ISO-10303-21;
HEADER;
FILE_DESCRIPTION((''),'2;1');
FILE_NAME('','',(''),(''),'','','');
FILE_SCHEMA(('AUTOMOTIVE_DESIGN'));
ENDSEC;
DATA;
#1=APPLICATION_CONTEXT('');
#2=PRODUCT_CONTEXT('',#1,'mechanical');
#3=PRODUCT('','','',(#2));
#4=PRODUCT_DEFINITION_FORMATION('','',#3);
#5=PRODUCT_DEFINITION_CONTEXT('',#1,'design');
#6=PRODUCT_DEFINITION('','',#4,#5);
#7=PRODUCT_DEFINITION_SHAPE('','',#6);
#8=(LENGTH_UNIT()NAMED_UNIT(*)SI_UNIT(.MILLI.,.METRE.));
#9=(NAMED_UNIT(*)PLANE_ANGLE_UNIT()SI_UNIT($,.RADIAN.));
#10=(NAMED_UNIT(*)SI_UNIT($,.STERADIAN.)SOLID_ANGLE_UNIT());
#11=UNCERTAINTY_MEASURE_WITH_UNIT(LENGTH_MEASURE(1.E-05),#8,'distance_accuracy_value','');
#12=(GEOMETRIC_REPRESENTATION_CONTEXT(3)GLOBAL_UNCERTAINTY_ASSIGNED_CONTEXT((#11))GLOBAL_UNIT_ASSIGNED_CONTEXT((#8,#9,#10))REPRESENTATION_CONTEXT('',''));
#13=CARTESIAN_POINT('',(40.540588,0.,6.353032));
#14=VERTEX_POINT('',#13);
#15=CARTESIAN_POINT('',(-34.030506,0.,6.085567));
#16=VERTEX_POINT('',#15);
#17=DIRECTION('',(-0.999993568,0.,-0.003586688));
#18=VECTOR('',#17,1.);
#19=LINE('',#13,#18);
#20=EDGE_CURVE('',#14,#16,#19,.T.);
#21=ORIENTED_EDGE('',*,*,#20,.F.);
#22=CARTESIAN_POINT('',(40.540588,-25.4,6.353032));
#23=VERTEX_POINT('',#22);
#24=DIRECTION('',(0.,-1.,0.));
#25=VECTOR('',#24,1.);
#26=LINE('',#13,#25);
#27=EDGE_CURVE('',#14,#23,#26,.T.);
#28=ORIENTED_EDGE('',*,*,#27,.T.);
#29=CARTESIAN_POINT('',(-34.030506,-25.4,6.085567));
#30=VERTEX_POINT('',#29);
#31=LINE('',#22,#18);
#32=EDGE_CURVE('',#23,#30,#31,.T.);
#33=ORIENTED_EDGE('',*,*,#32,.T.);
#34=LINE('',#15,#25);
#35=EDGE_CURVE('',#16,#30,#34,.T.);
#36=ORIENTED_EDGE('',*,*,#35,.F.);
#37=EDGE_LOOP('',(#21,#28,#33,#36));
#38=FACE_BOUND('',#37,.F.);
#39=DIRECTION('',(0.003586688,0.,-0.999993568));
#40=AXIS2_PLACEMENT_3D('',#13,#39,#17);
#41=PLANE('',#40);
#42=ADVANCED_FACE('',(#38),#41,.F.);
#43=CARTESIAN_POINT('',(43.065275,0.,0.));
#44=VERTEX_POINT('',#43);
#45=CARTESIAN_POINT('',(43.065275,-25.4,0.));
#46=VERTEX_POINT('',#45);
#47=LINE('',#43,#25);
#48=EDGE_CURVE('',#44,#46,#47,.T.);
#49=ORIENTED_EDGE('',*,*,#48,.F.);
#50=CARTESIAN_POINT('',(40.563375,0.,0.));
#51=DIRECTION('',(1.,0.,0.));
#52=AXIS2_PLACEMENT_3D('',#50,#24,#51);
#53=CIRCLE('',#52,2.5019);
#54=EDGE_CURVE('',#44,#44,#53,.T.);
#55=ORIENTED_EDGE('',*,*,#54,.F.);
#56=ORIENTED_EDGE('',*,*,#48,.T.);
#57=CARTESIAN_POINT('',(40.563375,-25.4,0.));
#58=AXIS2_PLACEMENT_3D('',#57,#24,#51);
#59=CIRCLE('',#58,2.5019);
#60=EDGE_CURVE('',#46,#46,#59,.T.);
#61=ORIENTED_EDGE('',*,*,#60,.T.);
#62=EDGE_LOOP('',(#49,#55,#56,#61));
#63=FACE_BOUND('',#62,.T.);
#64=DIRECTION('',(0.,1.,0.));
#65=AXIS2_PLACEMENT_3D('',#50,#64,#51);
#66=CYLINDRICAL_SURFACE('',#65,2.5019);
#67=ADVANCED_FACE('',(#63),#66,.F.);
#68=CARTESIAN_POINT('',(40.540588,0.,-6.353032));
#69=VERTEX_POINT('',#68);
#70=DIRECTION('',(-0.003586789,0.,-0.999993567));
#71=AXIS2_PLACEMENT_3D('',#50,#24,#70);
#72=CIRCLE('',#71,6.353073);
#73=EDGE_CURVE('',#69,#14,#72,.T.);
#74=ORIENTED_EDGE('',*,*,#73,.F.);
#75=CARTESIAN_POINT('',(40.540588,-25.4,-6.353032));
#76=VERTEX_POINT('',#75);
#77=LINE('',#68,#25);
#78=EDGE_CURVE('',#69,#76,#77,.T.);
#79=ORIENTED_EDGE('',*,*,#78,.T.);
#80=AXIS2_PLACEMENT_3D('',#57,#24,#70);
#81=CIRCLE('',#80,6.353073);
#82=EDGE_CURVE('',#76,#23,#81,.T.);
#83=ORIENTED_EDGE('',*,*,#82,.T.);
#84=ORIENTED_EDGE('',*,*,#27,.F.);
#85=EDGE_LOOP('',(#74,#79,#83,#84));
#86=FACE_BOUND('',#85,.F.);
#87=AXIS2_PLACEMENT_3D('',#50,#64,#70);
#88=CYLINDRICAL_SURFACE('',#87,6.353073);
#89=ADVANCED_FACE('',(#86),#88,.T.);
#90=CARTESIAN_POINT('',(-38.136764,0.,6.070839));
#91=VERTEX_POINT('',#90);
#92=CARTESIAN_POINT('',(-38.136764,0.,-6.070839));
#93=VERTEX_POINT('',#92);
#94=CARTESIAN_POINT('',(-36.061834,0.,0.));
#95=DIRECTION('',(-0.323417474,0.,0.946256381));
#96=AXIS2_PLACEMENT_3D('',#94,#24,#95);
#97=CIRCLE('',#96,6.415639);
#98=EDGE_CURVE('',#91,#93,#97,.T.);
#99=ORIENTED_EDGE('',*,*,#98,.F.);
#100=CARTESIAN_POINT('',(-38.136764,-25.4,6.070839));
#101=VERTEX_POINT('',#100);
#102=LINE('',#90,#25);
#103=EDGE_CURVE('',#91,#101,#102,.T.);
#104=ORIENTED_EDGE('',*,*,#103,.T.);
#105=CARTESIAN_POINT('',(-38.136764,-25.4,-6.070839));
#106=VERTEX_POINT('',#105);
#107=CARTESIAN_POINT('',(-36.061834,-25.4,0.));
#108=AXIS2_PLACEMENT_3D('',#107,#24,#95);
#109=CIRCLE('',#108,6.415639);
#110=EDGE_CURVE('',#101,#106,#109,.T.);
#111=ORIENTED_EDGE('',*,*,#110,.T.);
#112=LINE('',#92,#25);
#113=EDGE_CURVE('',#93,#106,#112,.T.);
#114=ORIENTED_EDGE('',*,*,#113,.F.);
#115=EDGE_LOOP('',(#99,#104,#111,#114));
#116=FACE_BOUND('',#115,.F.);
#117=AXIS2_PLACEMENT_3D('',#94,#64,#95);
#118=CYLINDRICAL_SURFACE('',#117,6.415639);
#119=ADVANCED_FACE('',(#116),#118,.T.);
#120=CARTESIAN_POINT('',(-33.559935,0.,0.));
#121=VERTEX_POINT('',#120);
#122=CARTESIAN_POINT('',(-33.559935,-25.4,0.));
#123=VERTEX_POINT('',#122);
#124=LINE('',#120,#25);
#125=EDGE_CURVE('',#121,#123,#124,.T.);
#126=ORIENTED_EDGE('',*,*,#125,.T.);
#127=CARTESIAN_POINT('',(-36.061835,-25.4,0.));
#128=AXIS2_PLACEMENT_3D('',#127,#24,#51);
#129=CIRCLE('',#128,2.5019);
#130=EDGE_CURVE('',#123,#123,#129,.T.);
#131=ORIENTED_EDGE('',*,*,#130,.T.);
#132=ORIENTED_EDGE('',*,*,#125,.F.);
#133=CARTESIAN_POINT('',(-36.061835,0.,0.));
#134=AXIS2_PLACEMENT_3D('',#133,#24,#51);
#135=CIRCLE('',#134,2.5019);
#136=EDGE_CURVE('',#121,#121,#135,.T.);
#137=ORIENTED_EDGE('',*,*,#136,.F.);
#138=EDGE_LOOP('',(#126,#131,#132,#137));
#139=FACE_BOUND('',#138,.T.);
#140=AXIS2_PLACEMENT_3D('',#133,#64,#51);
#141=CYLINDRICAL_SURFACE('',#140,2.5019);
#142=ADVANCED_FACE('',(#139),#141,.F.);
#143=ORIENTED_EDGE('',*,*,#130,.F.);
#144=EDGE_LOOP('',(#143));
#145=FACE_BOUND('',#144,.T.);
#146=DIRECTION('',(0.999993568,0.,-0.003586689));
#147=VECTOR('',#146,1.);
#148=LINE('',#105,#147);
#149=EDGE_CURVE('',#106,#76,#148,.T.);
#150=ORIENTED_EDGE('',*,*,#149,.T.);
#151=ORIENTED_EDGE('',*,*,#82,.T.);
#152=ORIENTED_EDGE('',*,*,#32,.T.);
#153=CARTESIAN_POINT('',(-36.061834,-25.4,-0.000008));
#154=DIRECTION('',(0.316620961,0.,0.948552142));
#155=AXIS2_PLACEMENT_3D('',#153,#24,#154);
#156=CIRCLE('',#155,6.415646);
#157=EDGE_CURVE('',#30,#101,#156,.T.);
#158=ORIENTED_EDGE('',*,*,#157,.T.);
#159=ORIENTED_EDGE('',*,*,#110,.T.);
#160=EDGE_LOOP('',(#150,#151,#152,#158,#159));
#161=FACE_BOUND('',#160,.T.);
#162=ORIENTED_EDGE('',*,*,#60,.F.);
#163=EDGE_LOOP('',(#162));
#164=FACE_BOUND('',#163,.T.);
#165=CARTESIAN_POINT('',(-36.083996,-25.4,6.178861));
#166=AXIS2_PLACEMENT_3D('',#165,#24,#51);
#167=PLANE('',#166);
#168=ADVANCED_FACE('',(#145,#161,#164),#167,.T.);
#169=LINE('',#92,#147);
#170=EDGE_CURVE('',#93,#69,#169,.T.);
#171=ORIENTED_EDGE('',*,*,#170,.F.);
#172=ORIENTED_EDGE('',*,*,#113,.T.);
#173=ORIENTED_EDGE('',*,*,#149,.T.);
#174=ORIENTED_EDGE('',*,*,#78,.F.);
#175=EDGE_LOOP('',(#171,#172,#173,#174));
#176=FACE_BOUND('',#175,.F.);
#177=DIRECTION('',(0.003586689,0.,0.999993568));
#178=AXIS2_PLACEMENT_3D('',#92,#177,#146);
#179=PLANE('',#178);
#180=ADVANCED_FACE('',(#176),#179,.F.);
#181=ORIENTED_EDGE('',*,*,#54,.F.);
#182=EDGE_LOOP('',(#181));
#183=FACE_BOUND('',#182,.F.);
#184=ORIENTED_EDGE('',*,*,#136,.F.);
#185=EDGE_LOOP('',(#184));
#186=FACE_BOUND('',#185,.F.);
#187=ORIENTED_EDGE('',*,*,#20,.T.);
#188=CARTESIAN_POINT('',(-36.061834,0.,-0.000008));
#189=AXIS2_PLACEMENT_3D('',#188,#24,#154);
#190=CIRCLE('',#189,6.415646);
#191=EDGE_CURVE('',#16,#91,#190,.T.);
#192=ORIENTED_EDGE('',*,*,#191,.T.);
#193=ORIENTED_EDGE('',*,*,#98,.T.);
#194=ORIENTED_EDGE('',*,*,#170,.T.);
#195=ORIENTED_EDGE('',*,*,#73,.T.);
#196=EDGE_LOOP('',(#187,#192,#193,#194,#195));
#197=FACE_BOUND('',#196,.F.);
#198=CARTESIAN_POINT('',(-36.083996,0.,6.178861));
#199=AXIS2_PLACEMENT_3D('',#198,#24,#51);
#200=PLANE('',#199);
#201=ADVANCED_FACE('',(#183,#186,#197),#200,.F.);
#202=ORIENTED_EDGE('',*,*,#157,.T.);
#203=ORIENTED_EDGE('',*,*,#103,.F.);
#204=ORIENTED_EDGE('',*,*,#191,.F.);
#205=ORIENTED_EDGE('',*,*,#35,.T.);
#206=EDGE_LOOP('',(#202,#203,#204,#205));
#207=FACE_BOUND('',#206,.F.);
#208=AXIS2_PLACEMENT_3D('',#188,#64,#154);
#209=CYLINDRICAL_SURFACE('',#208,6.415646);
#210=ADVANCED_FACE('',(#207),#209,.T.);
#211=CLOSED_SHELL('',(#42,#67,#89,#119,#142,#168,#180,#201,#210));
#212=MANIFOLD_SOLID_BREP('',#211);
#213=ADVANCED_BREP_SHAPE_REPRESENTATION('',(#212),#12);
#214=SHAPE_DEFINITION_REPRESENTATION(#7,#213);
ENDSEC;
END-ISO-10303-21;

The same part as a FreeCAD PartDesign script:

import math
import FreeCAD as App
import Part
import Sketcher
from FreeCAD import Vector
Q = App.Units.Quantity

doc = App.newDocument("Part")
body = doc.addObject("PartDesign::Body", "Body")

sketch1 = doc.addObject("Sketcher::SketchObject", "Sketch")
body.addObject(sketch1)
sketch1.AttachmentSupport = (doc.XZ_Plane, [""])
sketch1.MapMode = "FlatFace"
sketch1.addGeometry([
    Part.ArcOfCircle(Part.Circle(Vector(-36.1, 0, 0), Vector(0, 0, 1), 6.4), math.radians(72), math.radians(109)),
    Part.ArcOfCircle(Part.Circle(Vector(-36.1, 0, 0), Vector(0, 0, 1), 6.4), math.radians(109), math.radians(251)),
    Part.LineSegment(Vector(-38.1, -6.1, 0), Vector(40.5, -6.4, 0)),
    Part.ArcOfCircle(Part.Circle(Vector(40.6, 0, 0), Vector(0, 0, 1), 6.4), math.radians(-90), math.radians(90)),
    Part.LineSegment(Vector(40.5, 6.4, 0), Vector(-34, 6.1, 0)),
    Part.Circle(Vector(-36.1, 0, 0), Vector(0, 0, 1), 2.5),
    Part.Circle(Vector(40.6, 0, 0), Vector(0, 0, 1), 2.5),
], False)
sketch1.addConstraint([
    Sketcher.Constraint("Tangent", 0, 2, 1, 1),
    Sketcher.Constraint("Coincident", 1, 2, 2, 1),
    Sketcher.Constraint("Tangent", 2, 2, 3, 1),
    Sketcher.Constraint("Tangent", 3, 2, 4, 1),
    Sketcher.Constraint("Coincident", 4, 2, 0, 1),
    Sketcher.Constraint("Coincident", 5, 3, 0, 3),
    Sketcher.Constraint("Coincident", 6, 3, 3, 3),
    Sketcher.Constraint("Equal", 5, 6),
    Sketcher.Constraint("Symmetric", 0, 2, 1, 2, -1),
    Sketcher.Constraint("Symmetric", 2, 2, 3, 2, -1),
    Sketcher.Constraint("PointOnObject", 5, 3, -1),
    Sketcher.Constraint("Diameter", 5, Q("0.197 in")),
    Sketcher.Constraint("Radius", 1, 6.415639),
    Sketcher.Constraint("Radius", 3, 6.353073),
    Sketcher.Constraint("Distance", 2, 78.677858),
    Sketcher.Constraint("DistanceY", -1, 1, 0, 2, 6.070839),
    Sketcher.Constraint("DistanceX", -1, 1, 3, 2, 40.540588),
])
pad1 = doc.addObject("PartDesign::Pad", "Pad")
body.addObject(pad1)
pad1.Profile = sketch1
pad1.Length = Q("1 in")

doc.recompute()
